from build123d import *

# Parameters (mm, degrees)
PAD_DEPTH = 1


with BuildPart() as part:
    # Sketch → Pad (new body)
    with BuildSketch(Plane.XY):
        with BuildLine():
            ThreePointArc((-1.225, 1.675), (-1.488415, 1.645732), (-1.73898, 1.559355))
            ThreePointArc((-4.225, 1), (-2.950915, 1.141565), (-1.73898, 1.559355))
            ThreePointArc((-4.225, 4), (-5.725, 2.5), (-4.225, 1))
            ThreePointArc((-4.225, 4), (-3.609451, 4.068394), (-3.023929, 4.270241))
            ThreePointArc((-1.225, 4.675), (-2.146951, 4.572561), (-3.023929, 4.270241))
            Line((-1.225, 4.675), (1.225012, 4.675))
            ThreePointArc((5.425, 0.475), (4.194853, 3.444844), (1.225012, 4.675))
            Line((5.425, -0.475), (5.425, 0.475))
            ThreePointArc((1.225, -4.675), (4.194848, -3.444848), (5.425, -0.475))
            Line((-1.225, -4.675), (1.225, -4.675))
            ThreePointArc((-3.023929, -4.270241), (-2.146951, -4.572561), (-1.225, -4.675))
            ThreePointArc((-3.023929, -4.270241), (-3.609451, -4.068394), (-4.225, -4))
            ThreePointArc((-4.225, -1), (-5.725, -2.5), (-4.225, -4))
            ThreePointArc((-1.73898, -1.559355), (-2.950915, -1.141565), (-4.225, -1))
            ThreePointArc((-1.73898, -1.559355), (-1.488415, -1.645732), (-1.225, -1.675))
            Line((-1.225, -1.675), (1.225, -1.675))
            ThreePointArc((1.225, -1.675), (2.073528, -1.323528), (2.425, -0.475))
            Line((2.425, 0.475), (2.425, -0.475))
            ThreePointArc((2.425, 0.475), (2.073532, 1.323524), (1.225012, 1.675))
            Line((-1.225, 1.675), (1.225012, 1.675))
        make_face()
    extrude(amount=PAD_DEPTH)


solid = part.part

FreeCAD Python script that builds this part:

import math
import FreeCAD as App
import Part
import Sketcher

V = App.Vector

doc = App.newDocument("Part")
body = doc.addObject("PartDesign::Body", "Body")

sketch1 = doc.addObject("Sketcher::SketchObject", "Sketch")
body.addObject(sketch1)
sketch1.AttachmentSupport = (doc.XY_Plane, [""])
sketch1.MapMode = "FlatFace"
sketch1.addGeometry([
    Part.ArcOfCircle(Part.Circle(V(-1.2, 0.5, 0), V(0, 0, 1), 1.2), math.radians(90), math.radians(115)),
    Part.LineSegment(V(-1.2, 1.7, 0), V(1.2, 1.7, 0)),
    Part.ArcOfCircle(Part.Circle(V(1.2, 0.5, 0), V(0, 0, 1), 1.2), math.radians(0), math.radians(90)),
    Part.LineSegment(V(2.4, 0.5, 0), V(2.4, -0.5, 0)),
    Part.ArcOfCircle(Part.Circle(V(1.2, -0.5, 0), V(0, 0, 1), 1.2), math.radians(-90), math.radians(0)),
    Part.LineSegment(V(1.2, -1.7, 0), V(-1.2, -1.7, 0)),
    Part.ArcOfCircle(Part.Circle(V(-1.2, -0.5, 0), V(0, 0, 1), 1.2), math.radians(-115), math.radians(-90)),
    Part.ArcOfCircle(Part.Circle(V(-4.2, -6.8, 0), V(0, 0, 1), 5.8), math.radians(65), math.radians(90)),
    Part.ArcOfCircle(Part.Circle(V(-4.2, -2.5, 0), V(0, 0, 1), 1.5), math.radians(90), math.radians(270)),
    Part.ArcOfCircle(Part.Circle(V(-4.2, -6.8, 0), V(0, 0, 1), 2.8), math.radians(65), math.radians(90)),
    Part.ArcOfCircle(Part.Circle(V(-1.2, -0.5, 0), V(0, 0, 1), 4.2), math.radians(-115), math.radians(-90)),
    Part.LineSegment(V(-1.2, -4.7, 0), V(1.2, -4.7, 0)),
    Part.ArcOfCircle(Part.Circle(V(1.2, -0.5, 0), V(0, 0, 1), 4.2), math.radians(-90), math.radians(0)),
    Part.LineSegment(V(5.4, -0.5, 0), V(5.4, 0.5, 0)),
    Part.ArcOfCircle(Part.Circle(V(1.2, 0.5, 0), V(0, 0, 1), 4.2), math.radians(0), math.radians(90)),
    Part.LineSegment(V(1.2, 4.7, 0), V(-1.2, 4.7, 0)),
    Part.ArcOfCircle(Part.Circle(V(-1.2, 0.5, 0), V(0, 0, 1), 4.2), math.radians(90), math.radians(115)),
    Part.ArcOfCircle(Part.Circle(V(-4.2, 6.8, 0), V(0, 0, 1), 2.8), math.radians(-90), math.radians(-65)),
    Part.ArcOfCircle(Part.Circle(V(-4.2, 2.5, 0), V(0, 0, 1), 1.5), math.radians(90), math.radians(270)),
    Part.ArcOfCircle(Part.Circle(V(-4.2, 6.8, 0), V(0, 0, 1), 5.8), math.radians(-90), math.radians(-65)),
], False)
sketch1.addConstraint([
    Sketcher.Constraint("Tangent", 0, 1, 1, 1),
    Sketcher.Constraint("Coincident", 1, 2, 2, 2),
    Sketcher.Constraint("Tangent", 2, 1, 3, 1),
    Sketcher.Constraint("Tangent", 3, 2, 4, 2),
    Sketcher.Constraint("Tangent", 4, 1, 5, 1),
    Sketcher.Constraint("Tangent", 5, 2, 6, 2),
    Sketcher.Constraint("Tangent", 6, 1, 7, 1),
    Sketcher.Constraint("Tangent", 7, 2, 8, 1),
    Sketcher.Constraint("Tangent", 8, 2, 9, 2),
    Sketcher.Constraint("Tangent", 9, 1, 10, 1),
    Sketcher.Constraint("Tangent", 10, 2, 11, 1),
    Sketcher.Constraint("Tangent", 11, 2, 12, 1),
    Sketcher.Constraint("Tangent", 12, 2, 13, 1),
    Sketcher.Constraint("Tangent", 13, 2, 14, 1),
    Sketcher.Constraint("Coincident", 14, 2, 15, 1),
    Sketcher.Constraint("Tangent", 15, 2, 16, 1),
    Sketcher.Constraint("Tangent", 16, 2, 17, 2),
    Sketcher.Constraint("Tangent", 17, 1, 18, 1),
    Sketcher.Constraint("Tangent", 18, 2, 19, 1),
    Sketcher.Constraint("Tangent", 19, 2, 0, 2),
    Sketcher.Constraint("Horizontal", 1),
    Sketcher.Constraint("Vertical", 3),
    Sketcher.Constraint("Horizontal", 5),
    Sketcher.Constraint("Horizontal", 11),
    Sketcher.Constraint("Vertical", 13),
    Sketcher.Constraint("Horizontal", 15),
    Sketcher.Constraint("Coincident", 9, 3, 7, 3),
    Sketcher.Constraint("Coincident", 10, 3, 6, 3),
    Sketcher.Constraint("Coincident", 12, 3, 4, 3),
    Sketcher.Constraint("Coincident", 14, 3, 2, 3),
    Sketcher.Constraint("Coincident", 16, 3, 0, 3),
    Sketcher.Constraint("Coincident", 19, 3, 17, 3),
    Sketcher.Constraint("Equal", 2, 4),
    Sketcher.Constraint("Equal", 0, 6),
    Sketcher.Constraint("Equal", 10, 12),
    Sketcher.Constraint("Equal", 9, 17),
    Sketcher.Constraint("Symmetric", 0, 3, 4, 3, -1, 1),
    Sketcher.Constraint("Symmetric", 7, 3, 17, 3, -1),
    Sketcher.Constraint("Vertical", 7, 3, 8, 3),
    Sketcher.Constraint("Vertical", 8, 3, 18, 3),
    Sketcher.Constraint("Vertical", 1, 2, 14, 2),
    Sketcher.Constraint("Radius", 2, 1.2),
    Sketcher.Constraint("Radius", 8, 1.5),
    Sketcher.Constraint("DistanceY", 7, 2, -1, 1, 1.0),
    Sketcher.Constraint("DistanceX", 8, 3, 10, 3, 3.0),
    Sketcher.Constraint("DistanceX", 5, 2, 5, 1, 2.45),
    Sketcher.Constraint("DistanceY", 3, 2, 3, 1, 0.95),
    Sketcher.Constraint("DistanceX", 1, 1, 1, 2, 2.450012),
])
pad1 = doc.addObject("PartDesign::Pad", "Pad")
body.addObject(pad1)
pad1.Profile = sketch1
pad1.Length = 1

doc.recompute()
